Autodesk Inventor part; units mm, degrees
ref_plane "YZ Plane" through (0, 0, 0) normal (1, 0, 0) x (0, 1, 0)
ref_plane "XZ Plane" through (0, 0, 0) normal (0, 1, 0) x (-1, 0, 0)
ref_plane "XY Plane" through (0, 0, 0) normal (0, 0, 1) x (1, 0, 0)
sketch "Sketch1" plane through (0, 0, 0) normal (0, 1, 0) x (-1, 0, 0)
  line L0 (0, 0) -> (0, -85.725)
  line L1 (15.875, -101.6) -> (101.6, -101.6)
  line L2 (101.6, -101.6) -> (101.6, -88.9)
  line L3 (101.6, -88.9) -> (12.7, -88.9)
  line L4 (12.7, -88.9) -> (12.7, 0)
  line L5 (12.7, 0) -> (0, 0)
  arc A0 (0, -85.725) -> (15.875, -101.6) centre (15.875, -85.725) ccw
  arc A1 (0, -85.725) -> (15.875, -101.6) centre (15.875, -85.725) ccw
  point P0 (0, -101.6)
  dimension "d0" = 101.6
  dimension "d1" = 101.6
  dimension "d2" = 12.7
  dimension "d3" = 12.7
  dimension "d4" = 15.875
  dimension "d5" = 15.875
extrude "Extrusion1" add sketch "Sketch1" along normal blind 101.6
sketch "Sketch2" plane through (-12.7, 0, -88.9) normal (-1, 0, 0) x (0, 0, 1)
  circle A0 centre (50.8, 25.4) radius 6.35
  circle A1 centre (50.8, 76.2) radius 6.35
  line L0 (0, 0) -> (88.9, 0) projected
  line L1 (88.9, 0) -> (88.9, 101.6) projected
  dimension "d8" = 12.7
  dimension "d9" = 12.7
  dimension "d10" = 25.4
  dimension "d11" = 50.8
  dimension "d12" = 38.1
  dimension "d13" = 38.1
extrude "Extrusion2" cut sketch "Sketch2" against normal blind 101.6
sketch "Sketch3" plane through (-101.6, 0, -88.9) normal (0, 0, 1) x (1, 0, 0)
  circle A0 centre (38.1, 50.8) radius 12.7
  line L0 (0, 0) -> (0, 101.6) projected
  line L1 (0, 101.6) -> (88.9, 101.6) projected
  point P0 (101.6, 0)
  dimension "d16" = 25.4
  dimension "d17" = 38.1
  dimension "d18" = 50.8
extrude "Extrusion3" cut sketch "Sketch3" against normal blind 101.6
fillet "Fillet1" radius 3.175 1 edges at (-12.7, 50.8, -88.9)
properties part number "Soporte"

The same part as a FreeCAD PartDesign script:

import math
import FreeCAD as App
import Part
import Sketcher
Q = App.Units.Quantity


def edges_at(feature, points):
    """Names of the edges that pass closest to the given points."""
    edges = feature.Shape.Edges
    near = lambda p: min(range(len(edges)), key=lambda i: edges[i].distToShape(Part.Vertex(*p))[0])
    return sorted({f"Edge{near(p) + 1}" for p in points})

doc = App.newDocument("Part")
params = doc.addObject("Spreadsheet::Sheet", "Params")
for row, (alias, value) in enumerate([
    ("sketch1_width", "0.5 in"),
    ("sketch1_radius", "0.625 in"),
    ("pad1_length", "4 in"),
    ("sketch2_diameter", "0.5 in"),
    ("pocket1_length", "4 in"),
    ("sketch3_diameter", "1 in"),
    ("pocket2_length", "4 in"),
    ("fillet_radius", "0.125 in"),
], start=1):
    params.set(f"A{row}", alias)
    params.set(f"B{row}", "=" + value)
    params.setAlias(f"B{row}", alias)

body = doc.addObject("PartDesign::Body", "Body")

sketch1 = body.newObject("Sketcher::SketchObject", "Sketch")
sketch1.AttachmentSupport = (doc.getObject("XZ_Plane"), [""])
sketch1.MapMode = "FlatFace"
sketch1.addGeometry([
    Part.LineSegment(App.Vector(-12.7, 0, 0), App.Vector(0, 0, 0)),
    Part.LineSegment(App.Vector(0, 0, 0), App.Vector(0, -85.725, 0)),
    Part.ArcOfCircle(Part.Circle(App.Vector(-15.875, -85.725, 0), App.Vector(0, 0, 1), 15.875), math.radians(-90), math.radians(0)),
    Part.LineSegment(App.Vector(-15.875, -101.6, 0), App.Vector(-101.6, -101.6, 0)),
    Part.LineSegment(App.Vector(-101.6, -101.6, 0), App.Vector(-101.6, -88.9, 0)),
    Part.LineSegment(App.Vector(-101.6, -88.9, 0), App.Vector(-12.7, -88.9, 0)),
    Part.LineSegment(App.Vector(-12.7, -88.9, 0), App.Vector(-12.7, 0, 0)),
], False)
sketch1.addConstraint([
    Sketcher.Constraint("Coincident", 0, 2, 1, 1),
    Sketcher.Constraint("Tangent", 1, 2, 2, 2),
    Sketcher.Constraint("Tangent", 2, 1, 3, 1),
    Sketcher.Constraint("Coincident", 3, 2, 4, 1),
    Sketcher.Constraint("Coincident", 4, 2, 5, 1),
    Sketcher.Constraint("Coincident", 5, 2, 6, 1),
    Sketcher.Constraint("Coincident", 6, 2, 0, 1),
    Sketcher.Constraint("Horizontal", 0),
    Sketcher.Constraint("Vertical", 1),
    Sketcher.Constraint("Horizontal", 3),
    Sketcher.Constraint("Vertical", 4),
    Sketcher.Constraint("Horizontal", 5),
    Sketcher.Constraint("Vertical", 6),
    Sketcher.Constraint("Coincident", 0, 2, -1, 1),
    Sketcher.Constraint("Equal", 3, 1),
    Sketcher.Constraint("Equal", 0, 4),
    Sketcher.Constraint("DistanceX", 0, 1, 0, 2, Q("0.5 in")),
    Sketcher.Constraint("DistanceY", 2, 1, -1, 1, Q("4 in")),
    Sketcher.Constraint("Radius", 2, Q("0.625 in")),
])
sketch1.setExpression("Constraints[16]", "Params.sketch1_width")
sketch1.setExpression("Constraints[18]", "Params.sketch1_radius")
pad1 = body.newObject("PartDesign::Pad", "Pad")
pad1.Profile = sketch1
pad1.setExpression("Length", "Params.pad1_length")
pad1.Reversed = True

sketch2 = body.newObject("Sketcher::SketchObject", "Sketch001")
sketch2.AttachmentSupport = (doc.getObject("YZ_Plane"), [""])
sketch2.MapMode = "FlatFace"
sketch2.AttachmentOffset = App.Placement(App.Vector(0, 0, -0.5 * 25.4), App.Rotation())
sketch2.addGeometry([
    Part.Circle(App.Vector(25.4, -38.1, 0), App.Vector(0, 0, 1), 6.35),
    Part.Circle(App.Vector(76.2, -38.1, 0), App.Vector(0, 0, 1), 6.35),
], False)
sketch2.addConstraint([
    Sketcher.Constraint("Equal", 0, 1),
    Sketcher.Constraint("Horizontal", 0, 3, 1, 3),
    Sketcher.Constraint("Diameter", 0, Q("0.5 in")),
    Sketcher.Constraint("DistanceX", -1, 1, 0, 3, Q("1 in")),
    Sketcher.Constraint("DistanceX", 0, 3, 1, 3, Q("2 in")),
    Sketcher.Constraint("DistanceY", 0, 3, -1, 1, Q("1.5 in")),
])
sketch2.setExpression("Constraints[2]", "Params.sketch2_diameter")
pocket1 = body.newObject("PartDesign::Pocket", "Pocket")
pocket1.Profile = sketch2
pocket1.setExpression("Length", "Params.pocket1_length")
pocket1.Reversed = True

sketch3 = body.newObject("Sketcher::SketchObject", "Sketch002")
sketch3.AttachmentSupport = (doc.getObject("XY_Plane"), [""])
sketch3.MapMode = "FlatFace"
sketch3.AttachmentOffset = App.Placement(App.Vector(0, 0, -3.5 * 25.4), App.Rotation())
sketch3.addGeometry(Part.Circle(App.Vector(-63.5, 50.8, 0), App.Vector(0, 0, 1), 12.7), False)
sketch3.addConstraint([
    Sketcher.Constraint("Diameter", 0, Q("1 in")),
    Sketcher.Constraint("DistanceY", -1, 1, 0, 3, Q("2 in")),
    Sketcher.Constraint("DistanceX", 0, 3, -1, 1, Q("2.5 in")),
])
sketch3.setExpression("Constraints[0]", "Params.sketch3_diameter")
pocket2 = body.newObject("PartDesign::Pocket", "Pocket001")
pocket2.Profile = sketch3
pocket2.setExpression("Length", "Params.pocket2_length")
doc.recompute()

fillet = body.newObject("PartDesign::Fillet", "Fillet")
fillet.Base = (pocket2, edges_at(pocket2, [(-12.7, 50.8, -88.9)]))
fillet.setExpression("Radius", "Params.fillet_radius")

doc.recompute()
